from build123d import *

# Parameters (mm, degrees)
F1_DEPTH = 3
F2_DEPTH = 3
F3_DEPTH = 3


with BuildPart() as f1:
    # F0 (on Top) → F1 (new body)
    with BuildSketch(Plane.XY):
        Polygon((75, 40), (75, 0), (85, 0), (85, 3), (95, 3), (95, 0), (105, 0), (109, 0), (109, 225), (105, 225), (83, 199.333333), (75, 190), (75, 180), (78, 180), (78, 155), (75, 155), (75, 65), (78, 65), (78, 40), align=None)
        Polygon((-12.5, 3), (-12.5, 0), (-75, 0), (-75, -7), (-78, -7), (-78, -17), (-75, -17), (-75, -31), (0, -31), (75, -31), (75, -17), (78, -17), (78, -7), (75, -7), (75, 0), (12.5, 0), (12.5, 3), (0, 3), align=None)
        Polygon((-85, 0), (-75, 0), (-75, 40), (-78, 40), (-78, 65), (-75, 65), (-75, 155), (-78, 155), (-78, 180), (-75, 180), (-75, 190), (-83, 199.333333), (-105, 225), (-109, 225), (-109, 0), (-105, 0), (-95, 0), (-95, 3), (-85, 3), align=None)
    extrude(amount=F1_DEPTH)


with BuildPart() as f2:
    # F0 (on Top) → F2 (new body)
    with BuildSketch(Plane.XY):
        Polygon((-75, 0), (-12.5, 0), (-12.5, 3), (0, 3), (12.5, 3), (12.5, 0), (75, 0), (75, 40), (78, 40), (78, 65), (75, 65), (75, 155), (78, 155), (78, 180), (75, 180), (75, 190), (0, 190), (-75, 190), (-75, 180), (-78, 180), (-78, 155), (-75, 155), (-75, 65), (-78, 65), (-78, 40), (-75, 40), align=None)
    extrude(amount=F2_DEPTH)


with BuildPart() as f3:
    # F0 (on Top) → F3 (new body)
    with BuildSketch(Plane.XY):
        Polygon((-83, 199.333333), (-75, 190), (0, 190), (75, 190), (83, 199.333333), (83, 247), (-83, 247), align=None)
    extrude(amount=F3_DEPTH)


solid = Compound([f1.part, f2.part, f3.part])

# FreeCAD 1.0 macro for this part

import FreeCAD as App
import Part
import Sketcher

V = App.Vector
Q = App.Units.Quantity

doc = App.newDocument("Part")
body = doc.addObject("PartDesign::Body", "Body")
body.AllowCompound = True

# Sketch on XY plane
sketch1 = body.newObject("Sketcher::SketchObject", "Sketch")
sketch1.AttachmentSupport = (doc.getObject("XY_Plane"), [""])
sketch1.MapMode = "FlatFace"
sketch1.addGeometry([
    Part.LineSegment(V(75, 40, 0), V(75, 0, 0)),  # 0
    Part.LineSegment(V(75, 0, 0), V(85, 0, 0)),  # 1
    Part.LineSegment(V(85, 0, 0), V(85, 3, 0)),  # 2
    Part.LineSegment(V(85, 3, 0), V(95, 3, 0)),  # 3
    Part.LineSegment(V(95, 3, 0), V(95, 0, 0)),  # 4
    Part.LineSegment(V(95, 0, 0), V(109, 0, 0)),  # 5
    Part.LineSegment(V(109, 0, 0), V(109, 225, 0)),  # 6
    Part.LineSegment(V(109, 225, 0), V(105, 225, 0)),  # 7
    Part.LineSegment(V(105, 225, 0), V(83, 199.333333, 0)),  # 8
    Part.LineSegment(V(83, 199.333333, 0), V(75, 190, 0)),  # 9
    Part.LineSegment(V(75, 190, 0), V(75, 180, 0)),  # 10
    Part.LineSegment(V(75, 180, 0), V(78, 180, 0)),  # 11
    Part.LineSegment(V(78, 180, 0), V(78, 155, 0)),  # 12
    Part.LineSegment(V(78, 155, 0), V(75, 155, 0)),  # 13
    Part.LineSegment(V(75, 155, 0), V(75, 65, 0)),  # 14
    Part.LineSegment(V(75, 65, 0), V(78, 65, 0)),  # 15
    Part.LineSegment(V(78, 65, 0), V(78, 40, 0)),  # 16
    Part.LineSegment(V(78, 40, 0), V(75, 40, 0)),  # 17
    Part.LineSegment(V(-12.5, 3, 0), V(-12.5, 0, 0)),  # 18
    Part.LineSegment(V(-12.5, 0, 0), V(-75, 0, 0)),  # 19
    Part.LineSegment(V(-75, 0, 0), V(-75, -7, 0)),  # 20
    Part.LineSegment(V(-75, -7, 0), V(-78, -7, 0)),  # 21
    Part.LineSegment(V(-78, -7, 0), V(-78, -17, 0)),  # 22
    Part.LineSegment(V(-78, -17, 0), V(-75, -17, 0)),  # 23
    Part.LineSegment(V(-75, -17, 0), V(-75, -31, 0)),  # 24
    Part.LineSegment(V(-75, -31, 0), V(75, -31, 0)),  # 25
    Part.LineSegment(V(75, -31, 0), V(75, -17, 0)),  # 26
    Part.LineSegment(V(75, -17, 0), V(78, -17, 0)),  # 27
    Part.LineSegment(V(78, -17, 0), V(78, -7, 0)),  # 28
    Part.LineSegment(V(78, -7, 0), V(75, -7, 0)),  # 29
    Part.LineSegment(V(75, -7, 0), V(75, 0, 0)),  # 30
    Part.LineSegment(V(75, 0, 0), V(12.5, 0, 0)),  # 31
    Part.LineSegment(V(12.5, 0, 0), V(12.5, 3, 0)),  # 32
    Part.LineSegment(V(12.5, 3, 0), V(-12.5, 3, 0)),  # 33
    Part.LineSegment(V(-85, 0, 0), V(-75, 0, 0)),  # 34
    Part.LineSegment(V(-75, 0, 0), V(-75, 40, 0)),  # 35
    Part.LineSegment(V(-75, 40, 0), V(-78, 40, 0)),  # 36
    Part.LineSegment(V(-78, 40, 0), V(-78, 65, 0)),  # 37
    Part.LineSegment(V(-78, 65, 0), V(-75, 65, 0)),  # 38
    Part.LineSegment(V(-75, 65, 0), V(-75, 155, 0)),  # 39
    Part.LineSegment(V(-75, 155, 0), V(-78, 155, 0)),  # 40
    Part.LineSegment(V(-78, 155, 0), V(-78, 180, 0)),  # 41
    Part.LineSegment(V(-78, 180, 0), V(-75, 180, 0)),  # 42
    Part.LineSegment(V(-75, 180, 0), V(-75, 190, 0)),  # 43
    Part.LineSegment(V(-75, 190, 0), V(-83, 199.333333, 0)),  # 44
    Part.LineSegment(V(-83, 199.333333, 0), V(-105, 225, 0)),  # 45
    Part.LineSegment(V(-105, 225, 0), V(-109, 225, 0)),  # 46
    Part.LineSegment(V(-109, 225, 0), V(-109, 0, 0)),  # 47
    Part.LineSegment(V(-109, 0, 0), V(-95, 0, 0)),  # 48
    Part.LineSegment(V(-95, 0, 0), V(-95, 3, 0)),  # 49
    Part.LineSegment(V(-95, 3, 0), V(-85, 3, 0)),  # 50
    Part.LineSegment(V(-85, 3, 0), V(-85, 0, 0)),  # 51
], False)
sketch1.addConstraint([
    Sketcher.Constraint("Coincident", 0, 2, 1, 1),
    Sketcher.Constraint("Coincident", 1, 2, 2, 1),
    Sketcher.Constraint("Coincident", 2, 2, 3, 1),
    Sketcher.Constraint("Coincident", 3, 2, 4, 1),
    Sketcher.Constraint("Coincident", 4, 2, 5, 1),
    Sketcher.Constraint("Coincident", 5, 2, 6, 1),
    Sketcher.Constraint("Coincident", 6, 2, 7, 1),
    Sketcher.Constraint("Coincident", 7, 2, 8, 1),
    Sketcher.Constraint("Coincident", 8, 2, 9, 1),
    Sketcher.Constraint("Coincident", 9, 2, 10, 1),
    Sketcher.Constraint("Coincident", 10, 2, 11, 1),
    Sketcher.Constraint("Coincident", 11, 2, 12, 1),
    Sketcher.Constraint("Coincident", 12, 2, 13, 1),
    Sketcher.Constraint("Coincident", 13, 2, 14, 1),
    Sketcher.Constraint("Coincident", 14, 2, 15, 1),
    Sketcher.Constraint("Coincident", 15, 2, 16, 1),
    Sketcher.Constraint("Coincident", 16, 2, 17, 1),
    Sketcher.Constraint("Coincident", 17, 2, 0, 1),
    Sketcher.Constraint("Coincident", 18, 2, 19, 1),
    Sketcher.Constraint("Coincident", 19, 2, 20, 1),
    Sketcher.Constraint("Coincident", 20, 2, 21, 1),
    Sketcher.Constraint("Coincident", 21, 2, 22, 1),
    Sketcher.Constraint("Coincident", 22, 2, 23, 1),
    Sketcher.Constraint("Coincident", 23, 2, 24, 1),
    Sketcher.Constraint("Coincident", 24, 2, 25, 1),
    Sketcher.Constraint("Coincident", 25, 2, 26, 1),
    Sketcher.Constraint("Coincident", 26, 2, 27, 1),
    Sketcher.Constraint("Coincident", 27, 2, 28, 1),
    Sketcher.Constraint("Coincident", 28, 2, 29, 1),
    Sketcher.Constraint("Coincident", 29, 2, 30, 1),
    Sketcher.Constraint("Coincident", 30, 2, 31, 1),
    Sketcher.Constraint("Coincident", 31, 2, 32, 1),
    Sketcher.Constraint("Coincident", 32, 2, 33, 1),
    Sketcher.Constraint("Coincident", 33, 2, 18, 1),
    Sketcher.Constraint("Coincident", 34, 2, 35, 1),
    Sketcher.Constraint("Coincident", 35, 2, 36, 1),
    Sketcher.Constraint("Coincident", 36, 2, 37, 1),
    Sketcher.Constraint("Coincident", 37, 2, 38, 1),
    Sketcher.Constraint("Coincident", 38, 2, 39, 1),
    Sketcher.Constraint("Coincident", 39, 2, 40, 1),
    Sketcher.Constraint("Coincident", 40, 2, 41, 1),
    Sketcher.Constraint("Coincident", 41, 2, 42, 1),
    Sketcher.Constraint("Coincident", 42, 2, 43, 1),
    Sketcher.Constraint("Coincident", 43, 2, 44, 1),
    Sketcher.Constraint("Coincident", 44, 2, 45, 1),
    Sketcher.Constraint("Coincident", 45, 2, 46, 1),
    Sketcher.Constraint("Coincident", 46, 2, 47, 1),
    Sketcher.Constraint("Coincident", 47, 2, 48, 1),
    Sketcher.Constraint("Coincident", 48, 2, 49, 1),
    Sketcher.Constraint("Coincident", 49, 2, 50, 1),
    Sketcher.Constraint("Coincident", 50, 2, 51, 1),
    Sketcher.Constraint("Coincident", 51, 2, 34, 1),
    Sketcher.Constraint("Vertical", 0),
    Sketcher.Constraint("Horizontal", 1),
    Sketcher.Constraint("Vertical", 2),
    Sketcher.Constraint("Horizontal", 3),
    Sketcher.Constraint("Vertical", 4),
    Sketcher.Constraint("Horizontal", 5),
    Sketcher.Constraint("Vertical", 6),
    Sketcher.Constraint("Horizontal", 7),
    Sketcher.Constraint("Vertical", 10),
    Sketcher.Constraint("Horizontal", 11),
    Sketcher.Constraint("Vertical", 12),
    Sketcher.Constraint("Horizontal", 13),
    Sketcher.Constraint("Vertical", 14),
    Sketcher.Constraint("Horizontal", 15),
    Sketcher.Constraint("Vertical", 16),
    Sketcher.Constraint("Horizontal", 17),
    Sketcher.Constraint("Vertical", 18),
    Sketcher.Constraint("Horizontal", 19),
    Sketcher.Constraint("Vertical", 20),
    Sketcher.Constraint("Horizontal", 21),
    Sketcher.Constraint("Vertical", 22),
    Sketcher.Constraint("Horizontal", 23),
    Sketcher.Constraint("Vertical", 24),
    Sketcher.Constraint("Horizontal", 25),
    Sketcher.Constraint("Vertical", 26),
    Sketcher.Constraint("Horizontal", 27),
    Sketcher.Constraint("Vertical", 28),
    Sketcher.Constraint("Horizontal", 29),
    Sketcher.Constraint("Vertical", 30),
    Sketcher.Constraint("Horizontal", 31),
    Sketcher.Constraint("Vertical", 32),
    Sketcher.Constraint("Horizontal", 33),
    Sketcher.Constraint("Horizontal", 34),
    Sketcher.Constraint("Vertical", 35),
    Sketcher.Constraint("Horizontal", 36),
    Sketcher.Constraint("Vertical", 37),
    Sketcher.Constraint("Horizontal", 38),
    Sketcher.Constraint("Vertical", 39),
    Sketcher.Constraint("Horizontal", 40),
    Sketcher.Constraint("Vertical", 41),
    Sketcher.Constraint("Horizontal", 42),
    Sketcher.Constraint("Vertical", 43),
    Sketcher.Constraint("Horizontal", 46),
    Sketcher.Constraint("Vertical", 47),
    Sketcher.Constraint("Horizontal", 48),
    Sketcher.Constraint("Vertical", 49),
    Sketcher.Constraint("Horizontal", 50),
    Sketcher.Constraint("Vertical", 51),
    Sketcher.Constraint("Coincident", 30, 2, 0, 2),
    Sketcher.Constraint("Coincident", 34, 2, 19, 2),
    Sketcher.Constraint("Symmetric", 0, 2, 19, 2, -1, 1),
    Sketcher.Constraint("Symmetric", 5, 2, 47, 2, -1, 1),
    Sketcher.Constraint("Symmetric", 23, 2, 26, 2, -2),
    Sketcher.Constraint("Symmetric", 21, 2, 28, 2, -2),
    Sketcher.Constraint("Symmetric", 18, 2, 31, 2, -2),
    Sketcher.Constraint("Symmetric", 16, 2, 36, 2, -2),
    Sketcher.Constraint("Symmetric", 14, 2, 38, 2, -2),
    Sketcher.Constraint("Symmetric", 12, 2, 40, 2, -2),
    Sketcher.Constraint("Symmetric", 10, 2, 42, 2, -2),
    Sketcher.Constraint("Symmetric", 8, 2, 44, 2, -2),
    Sketcher.Constraint("Symmetric", 7, 2, 45, 2, -2),
    Sketcher.Constraint("Symmetric", 4, 2, 48, 2, -2),
    Sketcher.Constraint("Symmetric", 2, 2, 50, 2, -2),
    Sketcher.Constraint("Parallel", 8, 9),
    Sketcher.Constraint("Parallel", 44, 45),
    Sketcher.Constraint("Horizontal", 3, 2, 32, 2),
    Sketcher.Constraint("Vertical", 0, 2, 9, 2),
    Sketcher.Constraint("Vertical", 10, 2, 13, 2),
    Sketcher.Constraint("Vertical", 12, 2, 15, 2),
    Sketcher.Constraint("Vertical", 20, 2, 23, 2),
    Sketcher.Constraint("Vertical", 16, 2, 27, 2),
    Sketcher.Constraint("Equal", 1, 3),
    Sketcher.Constraint("Equal", 42, 2),
    Sketcher.Constraint("Equal", 50, 10),
    Sketcher.Constraint("Equal", 33, 12),
    Sketcher.Constraint("Equal", 12, 16),
    Sketcher.Constraint("Equal", 10, 22),
    Sketcher.Constraint("Equal", 48, 24),
    Sketcher.Constraint("DistanceX", 1, 1, 1, 2, Q("10 mm")),
    Sketcher.Constraint("DistanceX", 5, 1, 5, 2, Q("14 mm")),
    Sketcher.Constraint("DistanceX", 7, 2, 7, 1, Q("4 mm")),
    Sketcher.Constraint("DistanceX", 11, 1, 11, 2, Q("3 mm")),
    Sketcher.Constraint("DistanceX", 25, 1, 25, 2, Q("150 mm")),
    Sketcher.Constraint("DistanceX", 33, 2, 33, 1, Q("25 mm")),
    Sketcher.Constraint("DistanceY", 0, 2, 0, 1, Q("40 mm")),
    Sketcher.Constraint("DistanceY", 6, 1, 6, 2, Q("225 mm")),
    Sketcher.Constraint("DistanceY", 14, 2, 14, 1, Q("90 mm")),
    Sketcher.Constraint("DistanceY", 20, 2, 20, 1, Q("7 mm")),
    Sketcher.Constraint("DistanceX", -1, 1, 8, 2, Q("83 mm")),
])
pad1 = body.newObject("PartDesign::Pad", "Pad")
pad1.Profile = sketch1
pad1.Length = 3
body2 = doc.addObject("PartDesign::Body", "Body001")

# Sketch on XY plane
sketch2 = body2.newObject("Sketcher::SketchObject", "Sketch001")
sketch2.AttachmentSupport = (doc.getObject("XY_Plane001"), [""])
sketch2.MapMode = "FlatFace"
sketch2.addGeometry([
    Part.LineSegment(V(-75, 0, 0), V(-12.5, 0, 0)),  # 0
    Part.LineSegment(V(-12.5, 0, 0), V(-12.5, 3, 0)),  # 1
    Part.LineSegment(V(-12.5, 3, 0), V(12.5, 3, 0)),  # 2
    Part.LineSegment(V(12.5, 3, 0), V(12.5, 0, 0)),  # 3
    Part.LineSegment(V(12.5, 0, 0), V(75, 0, 0)),  # 4
    Part.LineSegment(V(75, 0, 0), V(75, 40, 0)),  # 5
    Part.LineSegment(V(75, 40, 0), V(78, 40, 0)),  # 6
    Part.LineSegment(V(78, 40, 0), V(78, 65, 0)),  # 7
    Part.LineSegment(V(78, 65, 0), V(75, 65, 0)),  # 8
    Part.LineSegment(V(75, 65, 0), V(75, 155, 0)),  # 9
    Part.LineSegment(V(75, 155, 0), V(78, 155, 0)),  # 10
    Part.LineSegment(V(78, 155, 0), V(78, 180, 0)),  # 11
    Part.LineSegment(V(78, 180, 0), V(75, 180, 0)),  # 12
    Part.LineSegment(V(75, 180, 0), V(75, 190, 0)),  # 13
    Part.LineSegment(V(75, 190, 0), V(-75, 190, 0)),  # 14
    Part.LineSegment(V(-75, 190, 0), V(-75, 180, 0)),  # 15
    Part.LineSegment(V(-75, 180, 0), V(-78, 180, 0)),  # 16
    Part.LineSegment(V(-78, 180, 0), V(-78, 155, 0)),  # 17
    Part.LineSegment(V(-78, 155, 0), V(-75, 155, 0)),  # 18
    Part.LineSegment(V(-75, 155, 0), V(-75, 65, 0)),  # 19
    Part.LineSegment(V(-75, 65, 0), V(-78, 65, 0)),  # 20
    Part.LineSegment(V(-78, 65, 0), V(-78, 40, 0)),  # 21
    Part.LineSegment(V(-78, 40, 0), V(-75, 40, 0)),  # 22
    Part.LineSegment(V(-75, 40, 0), V(-75, 0, 0)),  # 23
], False)
sketch2.addConstraint([
    Sketcher.Constraint("Coincident", 0, 2, 1, 1),
    Sketcher.Constraint("Coincident", 1, 2, 2, 1),
    Sketcher.Constraint("Coincident", 2, 2, 3, 1),
    Sketcher.Constraint("Coincident", 3, 2, 4, 1),
    Sketcher.Constraint("Coincident", 4, 2, 5, 1),
    Sketcher.Constraint("Coincident", 5, 2, 6, 1),
    Sketcher.Constraint("Coincident", 6, 2, 7, 1),
    Sketcher.Constraint("Coincident", 7, 2, 8, 1),
    Sketcher.Constraint("Coincident", 8, 2, 9, 1),
    Sketcher.Constraint("Coincident", 9, 2, 10, 1),
    Sketcher.Constraint("Coincident", 10, 2, 11, 1),
    Sketcher.Constraint("Coincident", 11, 2, 12, 1),
    Sketcher.Constraint("Coincident", 12, 2, 13, 1),
    Sketcher.Constraint("Coincident", 13, 2, 14, 1),
    Sketcher.Constraint("Coincident", 14, 2, 15, 1),
    Sketcher.Constraint("Coincident", 15, 2, 16, 1),
    Sketcher.Constraint("Coincident", 16, 2, 17, 1),
    Sketcher.Constraint("Coincident", 17, 2, 18, 1),
    Sketcher.Constraint("Coincident", 18, 2, 19, 1),
    Sketcher.Constraint("Coincident", 19, 2, 20, 1),
    Sketcher.Constraint("Coincident", 20, 2, 21, 1),
    Sketcher.Constraint("Coincident", 21, 2, 22, 1),
    Sketcher.Constraint("Coincident", 22, 2, 23, 1),
    Sketcher.Constraint("Coincident", 23, 2, 0, 1),
    Sketcher.Constraint("Horizontal", 0),
    Sketcher.Constraint("Vertical", 1),
    Sketcher.Constraint("Horizontal", 2),
    Sketcher.Constraint("Vertical", 3),
    Sketcher.Constraint("Horizontal", 4),
    Sketcher.Constraint("Vertical", 5),
    Sketcher.Constraint("Horizontal", 6),
    Sketcher.Constraint("Vertical", 7),
    Sketcher.Constraint("Horizontal", 8),
    Sketcher.Constraint("Vertical", 9),
    Sketcher.Constraint("Horizontal", 10),
    Sketcher.Constraint("Vertical", 11),
    Sketcher.Constraint("Horizontal", 12),
    Sketcher.Constraint("Vertical", 13),
    Sketcher.Constraint("Horizontal", 14),
    Sketcher.Constraint("Vertical", 15),
    Sketcher.Constraint("Horizontal", 16),
    Sketcher.Constraint("Vertical", 17),
    Sketcher.Constraint("Horizontal", 18),
    Sketcher.Constraint("Vertical", 19),
    Sketcher.Constraint("Horizontal", 20),
    Sketcher.Constraint("Vertical", 21),
    Sketcher.Constraint("Horizontal", 22),
    Sketcher.Constraint("Vertical", 23),
    Sketcher.Constraint("Symmetric", 0, 2, 3, 2, -1, 1),
    Sketcher.Constraint("Symmetric", 12, 2, 15, 2, -2),
    Sketcher.Constraint("Symmetric", 10, 2, 17, 2, -2),
    Sketcher.Constraint("Symmetric", 8, 2, 19, 2, -2),
    Sketcher.Constraint("Symmetric", 6, 2, 21, 2, -2),
    Sketcher.Constraint("Symmetric", 4, 2, 23, 2, -2),
    Sketcher.Constraint("Vertical", 5, 2, 8, 2),
    Sketcher.Constraint("Vertical", 7, 2, 10, 2),
    Sketcher.Constraint("Vertical", 9, 2, 12, 2),
    Sketcher.Constraint("Equal", 22, 1),
    Sketcher.Constraint("Equal", 2, 7),
    Sketcher.Constraint("Equal", 7, 11),
    Sketcher.Constraint("DistanceX", 2, 1, 2, 2, Q("25 mm")),
    Sketcher.Constraint("DistanceX", 6, 1, 6, 2, Q("3 mm")),
    Sketcher.Constraint("DistanceX", 14, 2, 14, 1, Q("150 mm")),
    Sketcher.Constraint("DistanceY", 5, 1, 5, 2, Q("40 mm")),
    Sketcher.Constraint("DistanceY", 9, 1, 9, 2, Q("90 mm")),
    Sketcher.Constraint("DistanceY", 13, 1, 13, 2, Q("10 mm")),
])
pad2 = body2.newObject("PartDesign::Pad", "Pad001")
pad2.Profile = sketch2
pad2.Length = 3
body3 = doc.addObject("PartDesign::Body", "Body002")

# Sketch on XY plane
sketch3 = body3.newObject("Sketcher::SketchObject", "Sketch002")
sketch3.AttachmentSupport = (doc.getObject("XY_Plane002"), [""])
sketch3.MapMode = "FlatFace"
sketch3.addGeometry([
    Part.LineSegment(V(-83, 199.333333, 0), V(-75, 190, 0)),  # 0
    Part.LineSegment(V(-75, 190, 0), V(75, 190, 0)),  # 1
    Part.LineSegment(V(75, 190, 0), V(83, 199.333333, 0)),  # 2
    Part.LineSegment(V(83, 199.333333, 0), V(83, 247, 0)),  # 3
    Part.LineSegment(V(83, 247, 0), V(-83, 247, 0)),  # 4
    Part.LineSegment(V(-83, 247, 0), V(-83, 199.333333, 0)),  # 5
], False)
sketch3.addConstraint([
    Sketcher.Constraint("Coincident", 0, 2, 1, 1),
    Sketcher.Constraint("Coincident", 1, 2, 2, 1),
    Sketcher.Constraint("Coincident", 2, 2, 3, 1),
    Sketcher.Constraint("Coincident", 3, 2, 4, 1),
    Sketcher.Constraint("Coincident", 4, 2, 5, 1),
    Sketcher.Constraint("Coincident", 5, 2, 0, 1),
    Sketcher.Constraint("Horizontal", 1),
    Sketcher.Constraint("Vertical", 3),
    Sketcher.Constraint("Horizontal", 4),
    Sketcher.Constraint("Vertical", 5),
    Sketcher.Constraint("Symmetric", 2, 2, 5, 2, -2),
    Sketcher.Constraint("Equal", 0, 2),
    Sketcher.Constraint("DistanceX", 1, 1, 1, 2, Q("150 mm")),
    Sketcher.Constraint("DistanceX", 4, 2, 4, 1, Q("166 mm")),
    Sketcher.Constraint("DistanceY", -1, 1, 0, 2, Q("190 mm")),
    Sketcher.Constraint("DistanceY", -1, 1, 3, 2, Q("247 mm")),
    Sketcher.Constraint("DistanceY", 3, 1, 3, 2, Q("47.666667 mm")),
])
pad3 = body3.newObject("PartDesign::Pad", "Pad002")
pad3.Profile = sketch3
pad3.Length = 3

doc.recompute()
